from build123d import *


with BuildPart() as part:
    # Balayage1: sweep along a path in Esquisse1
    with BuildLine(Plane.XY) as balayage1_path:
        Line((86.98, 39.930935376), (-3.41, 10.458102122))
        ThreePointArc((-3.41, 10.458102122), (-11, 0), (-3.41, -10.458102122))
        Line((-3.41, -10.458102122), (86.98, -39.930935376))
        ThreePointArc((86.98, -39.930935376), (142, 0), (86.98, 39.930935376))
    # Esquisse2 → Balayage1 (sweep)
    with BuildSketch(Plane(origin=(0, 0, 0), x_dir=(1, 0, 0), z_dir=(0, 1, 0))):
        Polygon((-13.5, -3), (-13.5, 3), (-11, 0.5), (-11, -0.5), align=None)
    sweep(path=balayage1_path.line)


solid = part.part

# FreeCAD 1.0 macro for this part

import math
import FreeCAD as App
import Part
import Sketcher

V = App.Vector


def add_polygon(sketch, points):
    """Adds a closed chain of lines whose ends are joined by coincident constraints."""
    first, n = sketch.GeometryCount, len(points)
    for a, b in zip(points, points[1:] + points[:1]):
        sketch.addGeometry(Part.LineSegment(App.Vector(*a, 0), App.Vector(*b, 0)), False)
    for i in range(n):
        sketch.addConstraint(Sketcher.Constraint("Coincident", first + i, 2, first + (i + 1) % n, 1))

doc = App.newDocument("Part")
body = doc.addObject("PartDesign::Body", "Body")

sketch1 = body.newObject("Sketcher::SketchObject", "Sketch")
sketch1.AttachmentSupport = (doc.getObject("XZ_Plane"), [""])
sketch1.MapMode = "FlatFace"
add_polygon(sketch1, [(-13.5, -3), (-13.5, 3), (-11, 0.5), (-11, -0.5)])
sketch1.addConstraint([
    Sketcher.Constraint("Vertical", 0),
    Sketcher.Constraint("Vertical", 2),
    Sketcher.Constraint("Perpendicular", 1, 3),
    Sketcher.Constraint("Equal", 1, 3),
    Sketcher.Constraint("DistanceY", 0, 1, 0, 2, 6.0),
    Sketcher.Constraint("DistanceY", 2, 2, 2, 1, 1.0),
    Sketcher.Constraint("DistanceY", -1, 1, 0, 2, 3.0),
    Sketcher.Constraint("DistanceX", 1, 2, -1, 1, 11.0),
])

sketch2 = body.newObject("Sketcher::SketchObject", "Sketch001")
sketch2.AttachmentSupport = (doc.getObject("XY_Plane"), [""])
sketch2.MapMode = "FlatFace"
sketch2.addGeometry([
    Part.LineSegment(V(87, 40, 0), V(-3, 10, 0)),
    Part.ArcOfCircle(Part.Circle(V(0, 0, 0), V(0, 0, 1), 11), math.radians(108), math.radians(252)),
    Part.LineSegment(V(-3, -10, 0), V(87, -40, 0)),
    Part.ArcOfCircle(Part.Circle(V(100, 0, 0), V(0, 0, 1), 42), math.radians(-108), math.radians(108)),
], False)
sketch2.addConstraint([
    Sketcher.Constraint("Tangent", 0, 2, 1, 1),
    Sketcher.Constraint("Tangent", 1, 2, 2, 1),
    Sketcher.Constraint("Tangent", 2, 2, 3, 1),
    Sketcher.Constraint("Tangent", 3, 2, 0, 1),
    Sketcher.Constraint("Coincident", 1, 3, -1, 1),
    Sketcher.Constraint("PointOnObject", 3, 3, -1),
    Sketcher.Constraint("Radius", 1, 11.0),
    Sketcher.Constraint("Radius", 3, 42.0),
    Sketcher.Constraint("DistanceX", -1, 1, 3, 3, 100.0),
])
doc.recompute()

additivepipe = body.newObject("PartDesign::AdditivePipe", "AdditivePipe")
additivepipe.Profile = sketch1
additivepipe.Spine = (sketch2, ["Edge1", "Edge2", "Edge3", "Edge4"])

doc.recompute()
